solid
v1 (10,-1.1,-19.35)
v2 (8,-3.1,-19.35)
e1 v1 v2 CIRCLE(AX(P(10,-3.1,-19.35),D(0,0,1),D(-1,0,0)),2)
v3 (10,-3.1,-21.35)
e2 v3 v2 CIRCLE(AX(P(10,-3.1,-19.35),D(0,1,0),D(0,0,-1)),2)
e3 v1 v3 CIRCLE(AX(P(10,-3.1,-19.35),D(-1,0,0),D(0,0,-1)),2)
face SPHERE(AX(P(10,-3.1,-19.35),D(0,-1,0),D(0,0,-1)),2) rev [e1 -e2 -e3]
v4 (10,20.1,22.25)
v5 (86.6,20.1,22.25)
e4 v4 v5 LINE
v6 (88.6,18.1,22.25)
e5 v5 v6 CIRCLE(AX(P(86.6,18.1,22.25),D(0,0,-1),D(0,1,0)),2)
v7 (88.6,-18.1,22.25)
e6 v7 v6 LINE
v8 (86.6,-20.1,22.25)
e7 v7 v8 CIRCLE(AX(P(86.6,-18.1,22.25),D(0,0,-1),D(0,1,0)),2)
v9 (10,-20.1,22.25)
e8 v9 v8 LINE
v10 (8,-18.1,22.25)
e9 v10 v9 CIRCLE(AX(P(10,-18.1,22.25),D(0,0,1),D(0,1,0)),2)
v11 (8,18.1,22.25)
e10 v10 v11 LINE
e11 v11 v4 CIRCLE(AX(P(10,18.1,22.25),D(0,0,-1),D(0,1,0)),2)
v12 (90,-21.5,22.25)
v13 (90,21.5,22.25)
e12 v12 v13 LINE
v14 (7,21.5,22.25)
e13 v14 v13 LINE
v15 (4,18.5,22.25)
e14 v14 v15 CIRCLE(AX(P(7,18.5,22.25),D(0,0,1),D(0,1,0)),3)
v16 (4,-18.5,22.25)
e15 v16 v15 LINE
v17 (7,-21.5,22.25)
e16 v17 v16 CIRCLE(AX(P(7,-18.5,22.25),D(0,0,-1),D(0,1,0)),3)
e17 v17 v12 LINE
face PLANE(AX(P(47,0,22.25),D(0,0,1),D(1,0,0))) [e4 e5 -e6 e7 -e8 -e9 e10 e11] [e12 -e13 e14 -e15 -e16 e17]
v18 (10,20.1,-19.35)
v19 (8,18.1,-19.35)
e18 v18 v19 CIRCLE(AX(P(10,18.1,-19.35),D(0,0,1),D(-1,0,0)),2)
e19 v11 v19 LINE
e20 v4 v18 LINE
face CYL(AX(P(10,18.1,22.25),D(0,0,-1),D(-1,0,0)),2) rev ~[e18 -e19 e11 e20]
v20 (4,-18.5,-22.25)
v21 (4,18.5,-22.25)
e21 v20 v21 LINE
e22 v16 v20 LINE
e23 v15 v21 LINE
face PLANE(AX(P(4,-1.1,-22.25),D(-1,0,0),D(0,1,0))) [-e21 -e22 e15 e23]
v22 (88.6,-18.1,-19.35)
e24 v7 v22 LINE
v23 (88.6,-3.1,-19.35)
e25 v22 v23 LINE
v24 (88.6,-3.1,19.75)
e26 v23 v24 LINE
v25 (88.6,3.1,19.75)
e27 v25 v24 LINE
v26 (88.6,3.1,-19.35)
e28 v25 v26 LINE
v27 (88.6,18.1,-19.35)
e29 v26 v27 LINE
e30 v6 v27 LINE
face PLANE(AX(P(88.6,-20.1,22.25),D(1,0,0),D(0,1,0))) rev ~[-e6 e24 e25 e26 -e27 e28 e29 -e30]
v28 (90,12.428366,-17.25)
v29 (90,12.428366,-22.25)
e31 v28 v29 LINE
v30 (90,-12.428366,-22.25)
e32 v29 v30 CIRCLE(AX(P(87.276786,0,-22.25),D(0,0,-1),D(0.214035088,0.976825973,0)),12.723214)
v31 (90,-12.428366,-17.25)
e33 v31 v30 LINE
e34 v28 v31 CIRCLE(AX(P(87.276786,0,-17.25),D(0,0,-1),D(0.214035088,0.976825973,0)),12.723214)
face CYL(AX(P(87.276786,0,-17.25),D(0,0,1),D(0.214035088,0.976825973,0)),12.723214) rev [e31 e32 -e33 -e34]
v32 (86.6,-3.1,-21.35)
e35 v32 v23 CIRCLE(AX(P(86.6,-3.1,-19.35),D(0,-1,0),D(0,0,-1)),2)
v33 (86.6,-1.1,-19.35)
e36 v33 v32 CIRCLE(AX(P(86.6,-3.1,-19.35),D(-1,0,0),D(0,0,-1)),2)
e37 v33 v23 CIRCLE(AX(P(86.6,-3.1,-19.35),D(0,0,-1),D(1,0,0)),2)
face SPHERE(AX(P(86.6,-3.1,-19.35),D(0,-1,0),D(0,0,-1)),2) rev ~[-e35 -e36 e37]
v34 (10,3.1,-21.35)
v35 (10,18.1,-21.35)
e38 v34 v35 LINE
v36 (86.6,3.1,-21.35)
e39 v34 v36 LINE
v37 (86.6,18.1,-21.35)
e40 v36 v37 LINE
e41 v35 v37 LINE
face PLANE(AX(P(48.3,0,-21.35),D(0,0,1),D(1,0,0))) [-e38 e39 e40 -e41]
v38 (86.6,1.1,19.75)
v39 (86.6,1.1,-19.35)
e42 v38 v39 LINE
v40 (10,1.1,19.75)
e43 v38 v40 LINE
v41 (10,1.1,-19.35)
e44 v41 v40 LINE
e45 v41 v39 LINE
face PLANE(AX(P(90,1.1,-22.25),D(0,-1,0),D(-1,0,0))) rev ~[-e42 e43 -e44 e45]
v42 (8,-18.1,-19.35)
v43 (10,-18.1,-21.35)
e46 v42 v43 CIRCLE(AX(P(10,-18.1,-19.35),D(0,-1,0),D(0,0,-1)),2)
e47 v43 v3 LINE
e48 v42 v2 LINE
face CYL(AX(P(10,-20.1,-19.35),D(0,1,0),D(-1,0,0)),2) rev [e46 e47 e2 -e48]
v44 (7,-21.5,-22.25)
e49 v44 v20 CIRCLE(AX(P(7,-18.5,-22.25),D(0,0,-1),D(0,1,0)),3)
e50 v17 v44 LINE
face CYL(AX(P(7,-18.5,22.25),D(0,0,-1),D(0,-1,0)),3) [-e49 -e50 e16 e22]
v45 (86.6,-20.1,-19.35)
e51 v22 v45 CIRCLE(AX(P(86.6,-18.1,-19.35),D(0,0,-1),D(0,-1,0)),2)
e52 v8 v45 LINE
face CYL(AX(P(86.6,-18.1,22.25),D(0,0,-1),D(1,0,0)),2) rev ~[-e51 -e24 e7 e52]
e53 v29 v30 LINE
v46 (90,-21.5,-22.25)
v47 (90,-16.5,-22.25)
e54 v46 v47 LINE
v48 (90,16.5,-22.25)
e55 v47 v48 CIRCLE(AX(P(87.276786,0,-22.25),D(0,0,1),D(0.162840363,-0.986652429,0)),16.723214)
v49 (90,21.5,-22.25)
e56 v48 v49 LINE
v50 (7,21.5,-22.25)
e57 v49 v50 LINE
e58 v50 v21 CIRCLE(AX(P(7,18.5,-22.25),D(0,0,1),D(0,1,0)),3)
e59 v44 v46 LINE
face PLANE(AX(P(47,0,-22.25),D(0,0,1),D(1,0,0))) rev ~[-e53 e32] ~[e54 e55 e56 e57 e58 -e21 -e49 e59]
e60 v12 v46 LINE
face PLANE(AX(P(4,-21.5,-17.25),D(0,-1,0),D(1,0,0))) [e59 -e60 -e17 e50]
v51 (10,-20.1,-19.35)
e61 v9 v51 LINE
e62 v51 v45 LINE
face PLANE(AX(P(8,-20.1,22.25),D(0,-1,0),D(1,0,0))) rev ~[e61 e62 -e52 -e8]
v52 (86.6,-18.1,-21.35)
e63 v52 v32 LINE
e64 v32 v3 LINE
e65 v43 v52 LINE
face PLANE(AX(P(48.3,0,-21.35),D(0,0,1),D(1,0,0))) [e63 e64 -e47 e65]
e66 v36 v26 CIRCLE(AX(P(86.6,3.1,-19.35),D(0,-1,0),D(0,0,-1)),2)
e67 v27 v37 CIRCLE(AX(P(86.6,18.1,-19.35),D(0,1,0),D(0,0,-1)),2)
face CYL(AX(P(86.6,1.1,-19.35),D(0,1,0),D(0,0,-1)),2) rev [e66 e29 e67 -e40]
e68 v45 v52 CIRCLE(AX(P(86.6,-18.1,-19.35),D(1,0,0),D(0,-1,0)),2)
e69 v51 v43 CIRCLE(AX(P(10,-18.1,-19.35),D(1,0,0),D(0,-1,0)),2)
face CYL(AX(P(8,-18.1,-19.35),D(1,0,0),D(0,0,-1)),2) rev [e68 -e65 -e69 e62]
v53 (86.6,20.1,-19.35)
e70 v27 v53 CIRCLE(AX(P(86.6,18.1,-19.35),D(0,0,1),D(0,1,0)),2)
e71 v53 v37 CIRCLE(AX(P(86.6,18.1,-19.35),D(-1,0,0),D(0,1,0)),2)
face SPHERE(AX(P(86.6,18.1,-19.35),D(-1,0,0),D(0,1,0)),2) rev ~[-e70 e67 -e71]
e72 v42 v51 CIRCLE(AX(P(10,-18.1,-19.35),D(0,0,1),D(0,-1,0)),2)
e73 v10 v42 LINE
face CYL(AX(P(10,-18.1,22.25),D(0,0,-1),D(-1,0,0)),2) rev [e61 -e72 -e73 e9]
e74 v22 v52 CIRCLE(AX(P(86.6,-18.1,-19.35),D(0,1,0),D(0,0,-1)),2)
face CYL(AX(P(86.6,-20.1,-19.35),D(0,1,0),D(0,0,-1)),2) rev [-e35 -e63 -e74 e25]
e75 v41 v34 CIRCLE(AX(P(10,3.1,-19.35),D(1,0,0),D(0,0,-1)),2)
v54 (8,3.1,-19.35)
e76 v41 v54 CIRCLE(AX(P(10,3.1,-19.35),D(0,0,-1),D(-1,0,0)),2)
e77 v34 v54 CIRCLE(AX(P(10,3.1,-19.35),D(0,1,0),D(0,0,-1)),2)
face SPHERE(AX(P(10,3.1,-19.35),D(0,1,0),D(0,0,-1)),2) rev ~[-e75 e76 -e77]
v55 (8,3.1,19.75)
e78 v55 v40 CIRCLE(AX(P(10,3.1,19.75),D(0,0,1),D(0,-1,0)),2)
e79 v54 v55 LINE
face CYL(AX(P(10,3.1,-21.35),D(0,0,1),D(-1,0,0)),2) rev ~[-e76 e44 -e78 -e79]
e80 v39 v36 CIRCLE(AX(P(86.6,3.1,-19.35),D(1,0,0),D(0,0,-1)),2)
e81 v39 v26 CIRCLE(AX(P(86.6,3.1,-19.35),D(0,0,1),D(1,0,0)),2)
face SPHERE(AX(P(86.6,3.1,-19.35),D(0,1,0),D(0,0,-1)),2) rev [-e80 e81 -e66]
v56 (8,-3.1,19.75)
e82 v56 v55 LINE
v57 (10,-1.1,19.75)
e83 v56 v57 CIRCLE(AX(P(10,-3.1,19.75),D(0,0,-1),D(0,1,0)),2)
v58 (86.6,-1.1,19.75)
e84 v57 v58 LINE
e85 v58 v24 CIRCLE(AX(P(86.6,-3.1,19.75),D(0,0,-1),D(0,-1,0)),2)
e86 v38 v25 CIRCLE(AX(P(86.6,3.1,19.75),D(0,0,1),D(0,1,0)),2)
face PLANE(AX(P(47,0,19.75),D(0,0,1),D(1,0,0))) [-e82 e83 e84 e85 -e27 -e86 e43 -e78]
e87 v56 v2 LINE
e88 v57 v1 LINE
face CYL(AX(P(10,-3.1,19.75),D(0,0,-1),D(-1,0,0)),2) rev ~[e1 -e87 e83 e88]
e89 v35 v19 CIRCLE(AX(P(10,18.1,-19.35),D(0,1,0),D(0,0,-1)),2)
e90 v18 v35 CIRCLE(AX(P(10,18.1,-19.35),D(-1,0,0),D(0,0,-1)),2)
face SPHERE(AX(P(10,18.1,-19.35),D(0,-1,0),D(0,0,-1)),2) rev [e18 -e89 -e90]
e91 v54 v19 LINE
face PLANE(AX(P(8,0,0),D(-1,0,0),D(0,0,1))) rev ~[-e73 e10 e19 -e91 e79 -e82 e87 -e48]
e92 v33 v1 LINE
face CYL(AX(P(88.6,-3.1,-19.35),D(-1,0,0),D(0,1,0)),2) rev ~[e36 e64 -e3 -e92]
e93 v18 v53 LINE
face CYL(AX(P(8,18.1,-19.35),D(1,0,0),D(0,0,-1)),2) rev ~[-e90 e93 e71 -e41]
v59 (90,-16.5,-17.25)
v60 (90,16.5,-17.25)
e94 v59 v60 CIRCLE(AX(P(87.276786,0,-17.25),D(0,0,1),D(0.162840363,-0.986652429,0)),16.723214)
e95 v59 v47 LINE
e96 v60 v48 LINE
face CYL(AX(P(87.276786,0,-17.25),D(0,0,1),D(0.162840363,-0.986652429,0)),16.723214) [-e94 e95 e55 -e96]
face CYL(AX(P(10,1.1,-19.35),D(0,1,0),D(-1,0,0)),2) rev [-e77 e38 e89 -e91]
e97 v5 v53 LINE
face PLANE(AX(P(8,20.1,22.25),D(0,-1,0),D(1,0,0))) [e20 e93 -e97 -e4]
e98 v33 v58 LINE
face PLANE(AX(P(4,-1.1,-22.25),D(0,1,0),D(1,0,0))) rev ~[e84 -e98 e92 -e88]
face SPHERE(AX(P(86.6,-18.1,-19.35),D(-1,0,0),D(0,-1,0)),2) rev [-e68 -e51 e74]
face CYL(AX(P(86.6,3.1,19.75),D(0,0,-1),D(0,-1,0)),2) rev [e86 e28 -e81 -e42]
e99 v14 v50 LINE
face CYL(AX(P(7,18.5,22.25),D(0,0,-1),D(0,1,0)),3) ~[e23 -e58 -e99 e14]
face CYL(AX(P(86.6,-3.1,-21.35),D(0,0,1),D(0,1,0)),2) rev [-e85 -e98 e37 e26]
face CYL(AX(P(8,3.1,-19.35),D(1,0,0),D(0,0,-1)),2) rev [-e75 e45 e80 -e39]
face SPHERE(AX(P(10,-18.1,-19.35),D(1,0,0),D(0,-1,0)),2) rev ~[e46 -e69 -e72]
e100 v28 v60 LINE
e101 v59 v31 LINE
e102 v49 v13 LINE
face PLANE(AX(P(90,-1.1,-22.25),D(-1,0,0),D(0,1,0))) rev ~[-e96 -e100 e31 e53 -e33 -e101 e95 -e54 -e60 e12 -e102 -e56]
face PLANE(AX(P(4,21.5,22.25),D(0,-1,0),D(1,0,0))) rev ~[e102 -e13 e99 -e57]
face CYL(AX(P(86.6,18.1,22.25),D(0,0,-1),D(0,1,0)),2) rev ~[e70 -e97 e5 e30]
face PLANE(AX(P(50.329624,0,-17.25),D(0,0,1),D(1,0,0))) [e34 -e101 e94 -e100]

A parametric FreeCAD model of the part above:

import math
import FreeCAD as App
import Part
import Sketcher


def edges_at(feature, points):
    """Names of the edges that pass closest to the given points."""
    edges = feature.Shape.Edges
    near = lambda p: min(range(len(edges)), key=lambda i: edges[i].distToShape(Part.Vertex(*p))[0])
    return sorted({f"Edge{near(p) + 1}" for p in points})


def add_polygon(sketch, points):
    """Adds a closed chain of lines whose ends are joined by coincident constraints."""
    first, n = sketch.GeometryCount, len(points)
    for a, b in zip(points, points[1:] + points[:1]):
        sketch.addGeometry(Part.LineSegment(App.Vector(*a, 0), App.Vector(*b, 0)), False)
    for i in range(n):
        sketch.addConstraint(Sketcher.Constraint("Coincident", first + i, 2, first + (i + 1) % n, 1))

doc = App.newDocument("Part")
body = doc.addObject("PartDesign::Body", "Body")

# Sketch on XY plane
sketch1 = body.newObject("Sketcher::SketchObject", "Sketch")
sketch1.AttachmentSupport = (doc.getObject("XY_Plane"), [""])
sketch1.MapMode = "FlatFace"
sketch1.AttachmentOffset = App.Placement(App.Vector(0, 0, 22.25), App.Rotation())
add_polygon(sketch1, [(4, 22), (4, -22), (90, -22), (90, 22)])  # lines 0-3
sketch1.addConstraint(Sketcher.Constraint("Vertical", 0))
sketch1.addConstraint(Sketcher.Constraint("Horizontal", 1))
sketch1.addConstraint(Sketcher.Constraint("Vertical", 2))
sketch1.addConstraint(Sketcher.Constraint("Horizontal", 3))
sketch1.addConstraint(Sketcher.Constraint("DistanceX", 1, 1, 1, 2, 86.0))
sketch1.addConstraint(Sketcher.Constraint("DistanceY", 0, 2, 0, 1, 43.0))
sketch1.addConstraint(Sketcher.Constraint("DistanceX", -1, 1, 0, 2, 4.0))
sketch1.addConstraint(Sketcher.Constraint("DistanceY", 0, 2, -1, 1, 21.5))
pad1 = body.newObject("PartDesign::Pad", "Pad")
pad1.Profile = sketch1
pad1.Length = 39.5
pad1.Reversed = True

# Sketch on XY plane
sketch2 = body.newObject("Sketcher::SketchObject", "Sketch001")
sketch2.AttachmentSupport = (doc.getObject("XY_Plane"), [""])
sketch2.MapMode = "FlatFace"
sketch2.AttachmentOffset = App.Placement(App.Vector(0, 0, -17.25), App.Rotation())
sketch2.addGeometry(Part.LineSegment(App.Vector(90, -16, 0), App.Vector(90, -22, 0)), False)
sketch2.addGeometry(Part.LineSegment(App.Vector(90, -22, 0), App.Vector(4, -22, 0)), False)
sketch2.addGeometry(Part.LineSegment(App.Vector(4, -22, 0), App.Vector(4, 22, 0)), False)
sketch2.addGeometry(Part.LineSegment(App.Vector(4, 22, 0), App.Vector(90, 22, 0)), False)
sketch2.addGeometry(Part.LineSegment(App.Vector(90, 22, 0), App.Vector(90, 16, 0)), False)
sketch2.addGeometry(Part.ArcOfCircle(Part.Circle(App.Vector(87, 0, 0), App.Vector(0, 0, 1), 17), math.radians(-81), math.radians(81)), False)
sketch2.addGeometry(Part.ArcOfCircle(Part.Circle(App.Vector(87, 0, 0), App.Vector(0, 0, 1), 13), math.radians(-78), math.radians(78)), False)
sketch2.addGeometry(Part.LineSegment(App.Vector(90, 12, 0), App.Vector(90, -12, 0)), False)
sketch2.addConstraint(Sketcher.Constraint("Coincident", 0, 2, 1, 1))
sketch2.addConstraint(Sketcher.Constraint("Coincident", 1, 2, 2, 1))
sketch2.addConstraint(Sketcher.Constraint("Coincident", 2, 2, 3, 1))
sketch2.addConstraint(Sketcher.Constraint("Coincident", 3, 2, 4, 1))
sketch2.addConstraint(Sketcher.Constraint("Coincident", 4, 2, 5, 2))
sketch2.addConstraint(Sketcher.Constraint("Coincident", 5, 1, 0, 1))
sketch2.addConstraint(Sketcher.Constraint("Coincident", 6, 1, 7, 2))
sketch2.addConstraint(Sketcher.Constraint("Coincident", 7, 1, 6, 2))
sketch2.addConstraint(Sketcher.Constraint("Vertical", 0))
sketch2.addConstraint(Sketcher.Constraint("Horizontal", 1))
sketch2.addConstraint(Sketcher.Constraint("Vertical", 2))
sketch2.addConstraint(Sketcher.Constraint("Horizontal", 3))
sketch2.addConstraint(Sketcher.Constraint("Vertical", 4))
sketch2.addConstraint(Sketcher.Constraint("Vertical", 7))
sketch2.addConstraint(Sketcher.Constraint("Coincident", 6, 3, 5, 3))
sketch2.addConstraint(Sketcher.Constraint("Symmetric", 0, 2, 3, 2, -1))
sketch2.addConstraint(Sketcher.Constraint("PointOnObject", 5, 3, -1))
sketch2.addConstraint(Sketcher.Constraint("Vertical", 5, 1, 6, 1))
sketch2.addConstraint(Sketcher.Constraint("DistanceX", 1, 2, 1, 1, 86.0))
sketch2.addConstraint(Sketcher.Constraint("DistanceY", 0, 2, 0, 1, 5.0))
sketch2.addConstraint(Sketcher.Constraint("DistanceY", 2, 1, 2, 2, 43.0))
sketch2.addConstraint(Sketcher.Constraint("DistanceX", -1, 1, 0, 2, 90.0))
sketch2.addConstraint(Sketcher.Constraint("Radius", 5, 16.723214))
sketch2.addConstraint(Sketcher.Constraint("Radius", 6, 12.723214))
pad2 = body.newObject("PartDesign::Pad", "Pad001")
pad2.Profile = sketch2
pad2.Length = 5
pad2.Reversed = True

# Sketch on XY plane
sketch3 = body.newObject("Sketcher::SketchObject", "Sketch002")
sketch3.AttachmentSupport = (doc.getObject("XY_Plane"), [""])
sketch3.MapMode = "FlatFace"
sketch3.AttachmentOffset = App.Placement(App.Vector(0, 0, 22.25), App.Rotation())
add_polygon(sketch3, [(8, 20), (8, -20), (89, -20), (89, 20)])  # lines 0-3
sketch3.addConstraint(Sketcher.Constraint("Vertical", 0))
sketch3.addConstraint(Sketcher.Constraint("Horizontal", 1))
sketch3.addConstraint(Sketcher.Constraint("Vertical", 2))
sketch3.addConstraint(Sketcher.Constraint("Horizontal", 3))
sketch3.addConstraint(Sketcher.Constraint("DistanceX", 1, 1, 1, 2, 80.6))
sketch3.addConstraint(Sketcher.Constraint("DistanceY", 0, 2, 0, 1, 40.2))
sketch3.addConstraint(Sketcher.Constraint("DistanceX", -1, 1, 0, 2, 8.0))
sketch3.addConstraint(Sketcher.Constraint("DistanceY", 0, 2, -1, 1, 20.1))
pocket1 = body.newObject("PartDesign::Pocket", "Pocket")
pocket1.Profile = sketch3
pocket1.Length = 43.6

# Sketch on YZ plane
sketch4 = body.newObject("Sketcher::SketchObject", "Sketch003")
sketch4.AttachmentSupport = (doc.getObject("YZ_Plane"), [""])
sketch4.MapMode = "FlatFace"
sketch4.AttachmentOffset = App.Placement(App.Vector(0, 0, 4), App.Rotation())
sketch4.addGeometry(Part.Circle(App.Vector(0, 0, 0), App.Vector(0, 0, 1), 4.2), False)
sketch4.addConstraint(Sketcher.Constraint("Coincident", 0, 3, -1, 1))
sketch4.addConstraint(Sketcher.Constraint("Diameter", 0, 8.3))
doc.recompute()
hole = body.newObject("PartDesign::Hole", "Hole")
hole.Profile = sketch4
hole.ThreadType = "None"
hole.Diameter = 8.3
hole.DepthType = "Dimension"
hole.Depth = 3.2
hole.DrillPoint = "Flat"
hole.Reversed = True
doc.recompute()

fillet = body.newObject("PartDesign::Fillet", "Fillet")
fillet.Base = (hole, edges_at(hole, [(4, -21.5, 0), (4, 21.5, 0)]))
fillet.Radius = 3

# Sketch on YZ plane
sketch5 = body.newObject("Sketcher::SketchObject", "Sketch004")
sketch5.AttachmentSupport = (doc.getObject("YZ_Plane"), [""])
sketch5.MapMode = "FlatFace"
sketch5.AttachmentOffset = App.Placement(App.Vector(0, 0, 8), App.Rotation())
sketch5.addGeometry(Part.Circle(App.Vector(0, 0, 0), App.Vector(0, 0, 1), 4.2), False)
sketch5.addConstraint(Sketcher.Constraint("Coincident", 0, 3, -1, 1))
sketch5.addConstraint(Sketcher.Constraint("Diameter", 0, 8.3))
pad3 = body.newObject("PartDesign::Pad", "Pad002")
pad3.Profile = sketch5
pad3.Length = 4
pad3.Reversed = True

# Sketch on XY plane
sketch6 = body.newObject("Sketcher::SketchObject", "Sketch005")
sketch6.AttachmentSupport = (doc.getObject("XY_Plane"), [""])
sketch6.MapMode = "FlatFace"
sketch6.AttachmentOffset = App.Placement(App.Vector(0, 0, -22.25), App.Rotation())
add_polygon(sketch6, [(90, 1.1), (90, -1.1), (4, -1.1), (4, 1.1)])  # lines 0-3
sketch6.addConstraint(Sketcher.Constraint("Vertical", 0))
sketch6.addConstraint(Sketcher.Constraint("Horizontal", 1))
sketch6.addConstraint(Sketcher.Constraint("Vertical", 2))
sketch6.addConstraint(Sketcher.Constraint("Horizontal", 3))
sketch6.addConstraint(Sketcher.Constraint("DistanceX", 1, 2, 1, 1, 86.0))
sketch6.addConstraint(Sketcher.Constraint("DistanceY", 0, 2, 0, 1, 2.2))
sketch6.addConstraint(Sketcher.Constraint("DistanceX", -1, 1, 0, 2, 90.0))
sketch6.addConstraint(Sketcher.Constraint("DistanceY", 0, 2, -1, 1, 1.1))
pad4 = body.newObject("PartDesign::Pad", "Pad003")
pad4.Profile = sketch6
pad4.Length = 42
doc.recompute()

fillet2 = body.newObject("PartDesign::Fillet", "Fillet001")
fillet2.Base = (pad4, edges_at(pad4, [
    (48.3, -20.1, -21.35),
    (88.6, -20.1, 0.45),
    (8, 10.6, -21.35),
    (8, -20.1, 0.45),
    (48.3, 20.1, -21.35),
    (8, 20.1, 0.45),
    (88.6, -10.6, -21.35),
    (88.6, 20.1, 0.45),
    (88.6, 10.6, -21.35),
    (8, -10.6, -21.35),
    (48.3, -1.1, -21.35),
    (48.3, 1.1, -21.35),
    (8, 1.1, -0.8),
    (88.6, 1.1, -0.8),
    (8, -1.1, -0.8),
    (88.6, -1.1, -0.8),
]))
fillet2.Radius = 2

doc.recompute()
